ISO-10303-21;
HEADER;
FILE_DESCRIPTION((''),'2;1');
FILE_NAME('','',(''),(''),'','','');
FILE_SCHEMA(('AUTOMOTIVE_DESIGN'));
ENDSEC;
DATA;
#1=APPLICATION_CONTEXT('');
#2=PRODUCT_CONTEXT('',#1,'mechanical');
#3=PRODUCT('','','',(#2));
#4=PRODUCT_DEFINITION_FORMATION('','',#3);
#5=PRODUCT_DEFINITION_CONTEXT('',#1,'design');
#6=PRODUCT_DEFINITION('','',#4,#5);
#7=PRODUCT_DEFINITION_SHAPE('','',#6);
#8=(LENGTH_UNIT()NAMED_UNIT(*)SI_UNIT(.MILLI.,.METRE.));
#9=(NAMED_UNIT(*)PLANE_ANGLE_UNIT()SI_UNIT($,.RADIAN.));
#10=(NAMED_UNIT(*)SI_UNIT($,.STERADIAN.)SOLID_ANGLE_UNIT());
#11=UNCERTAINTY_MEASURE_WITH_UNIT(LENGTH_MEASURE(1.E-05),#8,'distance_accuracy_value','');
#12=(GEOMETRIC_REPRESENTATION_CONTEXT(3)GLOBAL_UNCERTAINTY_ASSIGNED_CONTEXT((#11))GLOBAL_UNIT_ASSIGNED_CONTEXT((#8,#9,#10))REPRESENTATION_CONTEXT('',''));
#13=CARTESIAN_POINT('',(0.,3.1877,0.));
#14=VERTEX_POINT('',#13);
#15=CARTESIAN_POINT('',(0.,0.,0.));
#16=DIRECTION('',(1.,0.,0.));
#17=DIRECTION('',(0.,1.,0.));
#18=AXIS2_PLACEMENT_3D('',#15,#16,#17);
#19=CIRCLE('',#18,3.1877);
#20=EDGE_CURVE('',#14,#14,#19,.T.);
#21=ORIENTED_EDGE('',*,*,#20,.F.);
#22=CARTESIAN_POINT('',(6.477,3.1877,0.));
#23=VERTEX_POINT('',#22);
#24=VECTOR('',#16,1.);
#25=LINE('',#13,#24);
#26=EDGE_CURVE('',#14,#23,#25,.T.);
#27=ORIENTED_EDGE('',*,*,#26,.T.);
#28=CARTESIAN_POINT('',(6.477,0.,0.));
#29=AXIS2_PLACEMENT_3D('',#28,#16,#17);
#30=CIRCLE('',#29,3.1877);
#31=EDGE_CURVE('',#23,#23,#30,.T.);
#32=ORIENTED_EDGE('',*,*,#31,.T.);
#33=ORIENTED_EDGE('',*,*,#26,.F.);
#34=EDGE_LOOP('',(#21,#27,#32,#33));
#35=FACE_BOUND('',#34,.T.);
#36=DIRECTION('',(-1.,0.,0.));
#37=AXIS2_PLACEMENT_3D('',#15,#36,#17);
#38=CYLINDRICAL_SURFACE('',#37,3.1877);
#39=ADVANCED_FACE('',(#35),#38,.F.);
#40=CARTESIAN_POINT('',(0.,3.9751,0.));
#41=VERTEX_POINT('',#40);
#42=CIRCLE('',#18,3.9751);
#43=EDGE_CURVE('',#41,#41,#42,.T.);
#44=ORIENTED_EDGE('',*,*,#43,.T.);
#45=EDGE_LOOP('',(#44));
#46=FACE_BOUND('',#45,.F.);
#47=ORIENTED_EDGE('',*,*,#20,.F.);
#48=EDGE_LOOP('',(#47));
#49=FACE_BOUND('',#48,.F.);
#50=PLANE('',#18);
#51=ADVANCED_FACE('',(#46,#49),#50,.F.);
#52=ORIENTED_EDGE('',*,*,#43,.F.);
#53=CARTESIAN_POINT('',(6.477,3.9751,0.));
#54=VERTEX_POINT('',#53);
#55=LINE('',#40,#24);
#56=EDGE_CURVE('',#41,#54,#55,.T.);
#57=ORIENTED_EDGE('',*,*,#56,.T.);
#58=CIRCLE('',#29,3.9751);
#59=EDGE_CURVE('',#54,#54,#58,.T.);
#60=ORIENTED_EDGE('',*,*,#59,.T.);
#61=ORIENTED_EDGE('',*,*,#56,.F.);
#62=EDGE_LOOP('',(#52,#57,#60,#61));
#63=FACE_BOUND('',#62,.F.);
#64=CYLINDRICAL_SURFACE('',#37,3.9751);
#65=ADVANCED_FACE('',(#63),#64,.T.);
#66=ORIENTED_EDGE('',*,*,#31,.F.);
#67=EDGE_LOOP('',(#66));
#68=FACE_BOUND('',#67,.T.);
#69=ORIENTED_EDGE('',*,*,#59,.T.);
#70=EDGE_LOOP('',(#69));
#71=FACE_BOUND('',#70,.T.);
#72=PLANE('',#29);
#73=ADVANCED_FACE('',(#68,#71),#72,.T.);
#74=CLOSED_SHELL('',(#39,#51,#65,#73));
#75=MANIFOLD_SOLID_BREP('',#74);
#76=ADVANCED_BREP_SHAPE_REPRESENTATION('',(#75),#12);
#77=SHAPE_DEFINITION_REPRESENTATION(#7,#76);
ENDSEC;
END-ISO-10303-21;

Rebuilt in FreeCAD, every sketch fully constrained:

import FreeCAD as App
import Part
import Sketcher
Q = App.Units.Quantity

doc = App.newDocument("Part")
body = doc.addObject("PartDesign::Body", "Body")

sketch1 = doc.addObject("Sketcher::SketchObject", "Sketch")
body.addObject(sketch1)
sketch1.AttachmentSupport = (doc.YZ_Plane, [""])
sketch1.MapMode = "FlatFace"
sketch1.addGeometry([
    Part.Circle(App.Vector(0, 0, 0), App.Vector(0, 0, 1), 4),
    Part.Circle(App.Vector(0, 0, 0), App.Vector(0, 0, 1), 3.2),
], False)
sketch1.addConstraint([
    Sketcher.Constraint("Coincident", 0, 3, -1, 1),
    Sketcher.Constraint("Coincident", 1, 3, -1, 1),
    Sketcher.Constraint("Diameter", 0, Q("0.313 in")),
    Sketcher.Constraint("Diameter", 1, Q("0.251 in")),
])
pad1 = doc.addObject("PartDesign::Pad", "Pad")
body.addObject(pad1)
pad1.Profile = sketch1
pad1.Length = Q("0.255 in")

doc.recompute()
